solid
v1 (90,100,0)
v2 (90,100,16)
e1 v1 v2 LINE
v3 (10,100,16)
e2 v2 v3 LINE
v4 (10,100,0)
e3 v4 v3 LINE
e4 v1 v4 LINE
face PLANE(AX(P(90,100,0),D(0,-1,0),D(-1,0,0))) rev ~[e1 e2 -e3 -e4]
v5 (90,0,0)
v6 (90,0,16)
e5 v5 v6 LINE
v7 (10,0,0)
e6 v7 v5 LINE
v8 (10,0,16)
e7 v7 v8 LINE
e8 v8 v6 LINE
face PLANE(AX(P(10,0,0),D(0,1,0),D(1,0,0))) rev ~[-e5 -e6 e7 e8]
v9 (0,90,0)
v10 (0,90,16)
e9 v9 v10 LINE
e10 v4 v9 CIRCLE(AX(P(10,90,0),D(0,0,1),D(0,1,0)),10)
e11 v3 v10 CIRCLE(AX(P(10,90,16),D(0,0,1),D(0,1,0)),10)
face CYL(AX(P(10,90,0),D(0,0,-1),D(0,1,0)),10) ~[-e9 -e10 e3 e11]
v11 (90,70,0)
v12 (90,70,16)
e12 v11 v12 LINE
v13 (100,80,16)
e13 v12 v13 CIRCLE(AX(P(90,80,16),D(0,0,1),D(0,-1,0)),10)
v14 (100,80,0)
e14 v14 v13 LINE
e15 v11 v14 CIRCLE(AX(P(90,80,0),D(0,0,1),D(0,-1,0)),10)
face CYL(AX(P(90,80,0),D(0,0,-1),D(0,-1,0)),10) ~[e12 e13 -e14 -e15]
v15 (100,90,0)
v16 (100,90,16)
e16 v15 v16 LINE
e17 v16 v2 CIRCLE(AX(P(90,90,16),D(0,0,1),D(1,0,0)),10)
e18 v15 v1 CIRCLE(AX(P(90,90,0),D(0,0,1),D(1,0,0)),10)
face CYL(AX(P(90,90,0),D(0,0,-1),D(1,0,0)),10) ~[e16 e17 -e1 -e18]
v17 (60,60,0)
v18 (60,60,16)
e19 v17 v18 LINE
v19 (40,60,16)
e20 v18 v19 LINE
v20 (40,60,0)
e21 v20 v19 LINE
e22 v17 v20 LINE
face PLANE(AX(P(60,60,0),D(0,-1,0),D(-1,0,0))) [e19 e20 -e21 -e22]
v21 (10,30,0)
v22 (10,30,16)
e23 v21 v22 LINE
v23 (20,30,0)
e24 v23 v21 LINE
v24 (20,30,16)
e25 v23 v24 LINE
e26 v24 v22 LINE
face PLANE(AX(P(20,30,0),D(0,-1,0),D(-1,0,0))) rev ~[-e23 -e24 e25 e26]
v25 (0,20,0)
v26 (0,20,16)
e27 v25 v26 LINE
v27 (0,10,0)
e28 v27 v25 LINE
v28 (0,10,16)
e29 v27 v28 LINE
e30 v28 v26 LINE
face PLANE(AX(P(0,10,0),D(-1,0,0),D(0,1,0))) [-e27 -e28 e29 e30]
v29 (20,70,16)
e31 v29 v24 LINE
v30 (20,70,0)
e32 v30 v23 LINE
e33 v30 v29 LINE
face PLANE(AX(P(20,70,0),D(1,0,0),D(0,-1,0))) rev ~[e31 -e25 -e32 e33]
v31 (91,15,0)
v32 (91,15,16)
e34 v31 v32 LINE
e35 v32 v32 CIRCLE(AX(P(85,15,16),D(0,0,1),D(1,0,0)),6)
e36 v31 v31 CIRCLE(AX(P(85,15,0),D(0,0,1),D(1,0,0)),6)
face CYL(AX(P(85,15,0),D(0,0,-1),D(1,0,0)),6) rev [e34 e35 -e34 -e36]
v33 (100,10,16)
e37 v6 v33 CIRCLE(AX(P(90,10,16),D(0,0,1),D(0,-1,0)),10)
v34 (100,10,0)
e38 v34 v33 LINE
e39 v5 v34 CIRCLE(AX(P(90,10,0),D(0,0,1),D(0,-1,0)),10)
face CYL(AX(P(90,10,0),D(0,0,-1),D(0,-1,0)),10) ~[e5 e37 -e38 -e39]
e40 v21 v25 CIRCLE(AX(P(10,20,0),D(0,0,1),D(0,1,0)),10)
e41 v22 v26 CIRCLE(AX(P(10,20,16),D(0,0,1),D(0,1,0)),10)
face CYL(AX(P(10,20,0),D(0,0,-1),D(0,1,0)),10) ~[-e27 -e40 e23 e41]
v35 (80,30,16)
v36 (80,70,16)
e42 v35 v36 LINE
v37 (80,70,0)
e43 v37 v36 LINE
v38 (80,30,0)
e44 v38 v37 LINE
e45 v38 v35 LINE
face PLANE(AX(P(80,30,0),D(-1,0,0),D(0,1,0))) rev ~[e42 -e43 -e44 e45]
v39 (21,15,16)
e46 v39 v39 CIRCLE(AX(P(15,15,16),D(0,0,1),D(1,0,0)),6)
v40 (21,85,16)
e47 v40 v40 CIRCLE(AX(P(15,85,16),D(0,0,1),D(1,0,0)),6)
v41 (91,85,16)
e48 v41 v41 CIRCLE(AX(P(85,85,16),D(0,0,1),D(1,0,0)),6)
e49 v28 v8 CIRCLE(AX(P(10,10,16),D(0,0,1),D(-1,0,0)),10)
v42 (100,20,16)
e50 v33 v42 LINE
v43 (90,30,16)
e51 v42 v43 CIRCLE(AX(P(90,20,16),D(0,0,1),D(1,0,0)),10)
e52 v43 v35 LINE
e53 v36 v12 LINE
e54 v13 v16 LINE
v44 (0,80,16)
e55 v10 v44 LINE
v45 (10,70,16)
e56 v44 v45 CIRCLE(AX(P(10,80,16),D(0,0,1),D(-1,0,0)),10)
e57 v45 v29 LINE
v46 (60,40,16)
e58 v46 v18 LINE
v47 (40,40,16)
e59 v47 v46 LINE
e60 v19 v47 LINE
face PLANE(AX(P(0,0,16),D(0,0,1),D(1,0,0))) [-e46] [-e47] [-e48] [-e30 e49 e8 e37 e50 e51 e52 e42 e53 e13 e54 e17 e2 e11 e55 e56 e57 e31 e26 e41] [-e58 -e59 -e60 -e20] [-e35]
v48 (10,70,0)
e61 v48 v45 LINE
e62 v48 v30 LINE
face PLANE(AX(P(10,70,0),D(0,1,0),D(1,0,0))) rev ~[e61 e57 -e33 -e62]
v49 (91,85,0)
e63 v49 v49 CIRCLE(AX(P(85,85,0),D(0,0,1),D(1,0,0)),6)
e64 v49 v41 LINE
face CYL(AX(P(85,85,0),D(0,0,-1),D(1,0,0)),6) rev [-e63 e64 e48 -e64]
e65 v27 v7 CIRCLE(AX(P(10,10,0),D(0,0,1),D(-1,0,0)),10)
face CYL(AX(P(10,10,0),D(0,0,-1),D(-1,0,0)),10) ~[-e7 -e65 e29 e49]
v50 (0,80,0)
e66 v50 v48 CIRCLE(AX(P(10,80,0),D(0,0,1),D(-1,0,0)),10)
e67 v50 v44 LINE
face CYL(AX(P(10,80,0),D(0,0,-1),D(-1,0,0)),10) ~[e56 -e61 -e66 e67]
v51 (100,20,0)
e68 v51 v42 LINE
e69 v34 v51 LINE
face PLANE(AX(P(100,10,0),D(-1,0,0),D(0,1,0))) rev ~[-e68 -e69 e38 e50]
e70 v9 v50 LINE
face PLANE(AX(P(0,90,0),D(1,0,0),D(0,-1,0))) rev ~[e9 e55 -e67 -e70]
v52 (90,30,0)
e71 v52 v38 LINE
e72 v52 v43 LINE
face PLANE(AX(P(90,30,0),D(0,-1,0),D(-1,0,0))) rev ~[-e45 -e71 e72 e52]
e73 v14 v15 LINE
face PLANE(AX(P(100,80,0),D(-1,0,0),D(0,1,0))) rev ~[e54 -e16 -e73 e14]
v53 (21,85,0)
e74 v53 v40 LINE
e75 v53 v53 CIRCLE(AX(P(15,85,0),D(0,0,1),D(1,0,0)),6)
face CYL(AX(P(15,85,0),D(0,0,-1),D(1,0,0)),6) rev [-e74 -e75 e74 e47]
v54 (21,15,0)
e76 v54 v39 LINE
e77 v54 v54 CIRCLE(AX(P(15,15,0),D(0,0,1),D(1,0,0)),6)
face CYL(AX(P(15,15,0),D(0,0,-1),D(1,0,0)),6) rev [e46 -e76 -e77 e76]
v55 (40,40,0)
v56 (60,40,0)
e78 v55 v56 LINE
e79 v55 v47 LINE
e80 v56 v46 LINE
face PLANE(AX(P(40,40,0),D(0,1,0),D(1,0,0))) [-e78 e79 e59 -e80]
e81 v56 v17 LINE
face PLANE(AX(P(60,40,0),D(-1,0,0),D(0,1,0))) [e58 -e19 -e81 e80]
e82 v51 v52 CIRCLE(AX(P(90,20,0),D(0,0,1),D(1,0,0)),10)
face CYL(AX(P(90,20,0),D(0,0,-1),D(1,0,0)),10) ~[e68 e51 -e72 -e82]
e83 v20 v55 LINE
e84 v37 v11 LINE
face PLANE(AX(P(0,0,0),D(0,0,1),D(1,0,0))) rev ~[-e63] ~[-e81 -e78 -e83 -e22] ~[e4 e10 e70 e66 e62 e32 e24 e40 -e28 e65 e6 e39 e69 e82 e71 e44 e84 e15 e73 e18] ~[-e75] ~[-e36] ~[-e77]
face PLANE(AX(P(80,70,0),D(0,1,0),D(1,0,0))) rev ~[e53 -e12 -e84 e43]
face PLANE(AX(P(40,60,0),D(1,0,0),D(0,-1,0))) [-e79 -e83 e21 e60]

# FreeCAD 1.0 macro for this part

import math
import FreeCAD as App
import Part
import Sketcher
Q = App.Units.Quantity


def add_polygon(sketch, points):
    """Adds a closed chain of lines whose ends are joined by coincident constraints."""
    first, n = sketch.GeometryCount, len(points)
    for a, b in zip(points, points[1:] + points[:1]):
        sketch.addGeometry(Part.LineSegment(App.Vector(*a, 0), App.Vector(*b, 0)), False)
    for i in range(n):
        sketch.addConstraint(Sketcher.Constraint("Coincident", first + i, 2, first + (i + 1) % n, 1))

doc = App.newDocument("Part")
params = doc.addObject("Spreadsheet::Sheet", "Params")
for row, (alias, value) in enumerate([
    ("sketch1_radius", "10 mm"),
    ("sketch1_width", "10 mm"),
    ("sketch1_diameter", "12 mm"),
    ("sketch1_width2", "80 mm"),
    ("sketch1_width3", "20 mm"),
    ("pad1_length", "16 mm"),
], start=1):
    params.set(f"A{row}", alias)
    params.set(f"B{row}", "=" + value)
    params.setAlias(f"B{row}", alias)

body = doc.addObject("PartDesign::Body", "Body")

# Sketch on XY plane
sketch1 = doc.addObject("Sketcher::SketchObject", "Sketch")
body.addObject(sketch1)
sketch1.AttachmentSupport = (doc.XY_Plane, [""])
sketch1.MapMode = "FlatFace"
sketch1.addGeometry(Part.ArcOfCircle(Part.Circle(App.Vector(10, 10, 0), App.Vector(0, 0, 1), 10), math.radians(180), math.radians(270)), False)  # 0
sketch1.addGeometry(Part.LineSegment(App.Vector(10, 0, 0), App.Vector(90, 0, 0)), False)  # 1
sketch1.addGeometry(Part.ArcOfCircle(Part.Circle(App.Vector(90, 10, 0), App.Vector(0, 0, 1), 10), math.radians(-90), math.radians(0)), False)  # 2
sketch1.addGeometry(Part.LineSegment(App.Vector(100, 10, 0), App.Vector(100, 20, 0)), False)  # 3
sketch1.addGeometry(Part.ArcOfCircle(Part.Circle(App.Vector(90, 20, 0), App.Vector(0, 0, 1), 10), math.radians(0), math.radians(90)), False)  # 4
sketch1.addGeometry(Part.LineSegment(App.Vector(90, 30, 0), App.Vector(80, 30, 0)), False)  # 5
sketch1.addGeometry(Part.LineSegment(App.Vector(80, 30, 0), App.Vector(80, 70, 0)), False)  # 6
sketch1.addGeometry(Part.LineSegment(App.Vector(80, 70, 0), App.Vector(90, 70, 0)), False)  # 7
sketch1.addGeometry(Part.ArcOfCircle(Part.Circle(App.Vector(90, 80, 0), App.Vector(0, 0, 1), 10), math.radians(-90), math.radians(0)), False)  # 8
sketch1.addGeometry(Part.LineSegment(App.Vector(100, 80, 0), App.Vector(100, 90, 0)), False)  # 9
sketch1.addGeometry(Part.ArcOfCircle(Part.Circle(App.Vector(90, 90, 0), App.Vector(0, 0, 1), 10), math.radians(0), math.radians(90)), False)  # 10
sketch1.addGeometry(Part.LineSegment(App.Vector(90, 100, 0), App.Vector(10, 100, 0)), False)  # 11
sketch1.addGeometry(Part.ArcOfCircle(Part.Circle(App.Vector(10, 90, 0), App.Vector(0, 0, 1), 10), math.radians(90), math.radians(180)), False)  # 12
sketch1.addGeometry(Part.LineSegment(App.Vector(0, 90, 0), App.Vector(0, 80, 0)), False)  # 13
sketch1.addGeometry(Part.ArcOfCircle(Part.Circle(App.Vector(10, 80, 0), App.Vector(0, 0, 1), 10), math.radians(180), math.radians(270)), False)  # 14
sketch1.addGeometry(Part.LineSegment(App.Vector(10, 70, 0), App.Vector(20, 70, 0)), False)  # 15
sketch1.addGeometry(Part.LineSegment(App.Vector(20, 70, 0), App.Vector(20, 30, 0)), False)  # 16
sketch1.addGeometry(Part.LineSegment(App.Vector(20, 30, 0), App.Vector(10, 30, 0)), False)  # 17
sketch1.addGeometry(Part.ArcOfCircle(Part.Circle(App.Vector(10, 20, 0), App.Vector(0, 0, 1), 10), math.radians(90), math.radians(180)), False)  # 18
sketch1.addGeometry(Part.LineSegment(App.Vector(0, 20, 0), App.Vector(0, 10, 0)), False)  # 19
sketch1.addGeometry(Part.Circle(App.Vector(15, 15, 0), App.Vector(0, 0, 1), 6), False)  # 20
sketch1.addGeometry(Part.Circle(App.Vector(85, 15, 0), App.Vector(0, 0, 1), 6), False)  # 21
sketch1.addGeometry(Part.Circle(App.Vector(15, 85, 0), App.Vector(0, 0, 1), 6), False)  # 22
add_polygon(sketch1, [(60, 40), (40, 40), (40, 60), (60, 60)])  # lines 23-26
sketch1.addGeometry(Part.Circle(App.Vector(85, 85, 0), App.Vector(0, 0, 1), 6), False)  # 27
sketch1.addConstraint(Sketcher.Constraint("Tangent", 0, 2, 1, 1))
sketch1.addConstraint(Sketcher.Constraint("Tangent", 1, 2, 2, 1))
sketch1.addConstraint(Sketcher.Constraint("Tangent", 2, 2, 3, 1))
sketch1.addConstraint(Sketcher.Constraint("Tangent", 3, 2, 4, 1))
sketch1.addConstraint(Sketcher.Constraint("Tangent", 4, 2, 5, 1))
sketch1.addConstraint(Sketcher.Constraint("Coincident", 5, 2, 6, 1))
sketch1.addConstraint(Sketcher.Constraint("Coincident", 6, 2, 7, 1))
sketch1.addConstraint(Sketcher.Constraint("Tangent", 7, 2, 8, 1))
sketch1.addConstraint(Sketcher.Constraint("Tangent", 8, 2, 9, 1))
sketch1.addConstraint(Sketcher.Constraint("Tangent", 9, 2, 10, 1))
sketch1.addConstraint(Sketcher.Constraint("Tangent", 10, 2, 11, 1))
sketch1.addConstraint(Sketcher.Constraint("Tangent", 11, 2, 12, 1))
sketch1.addConstraint(Sketcher.Constraint("Tangent", 12, 2, 13, 1))
sketch1.addConstraint(Sketcher.Constraint("Tangent", 13, 2, 14, 1))
sketch1.addConstraint(Sketcher.Constraint("Tangent", 14, 2, 15, 1))
sketch1.addConstraint(Sketcher.Constraint("Coincident", 15, 2, 16, 1))
sketch1.addConstraint(Sketcher.Constraint("Coincident", 16, 2, 17, 1))
sketch1.addConstraint(Sketcher.Constraint("Tangent", 17, 2, 18, 1))
sketch1.addConstraint(Sketcher.Constraint("Tangent", 18, 2, 19, 1))
sketch1.addConstraint(Sketcher.Constraint("Tangent", 19, 2, 0, 1))
sketch1.addConstraint(Sketcher.Constraint("Horizontal", 1))
sketch1.addConstraint(Sketcher.Constraint("Vertical", 3))
sketch1.addConstraint(Sketcher.Constraint("Horizontal", 5))
sketch1.addConstraint(Sketcher.Constraint("Vertical", 6))
sketch1.addConstraint(Sketcher.Constraint("Horizontal", 7))
sketch1.addConstraint(Sketcher.Constraint("Vertical", 9))
sketch1.addConstraint(Sketcher.Constraint("Horizontal", 11))
sketch1.addConstraint(Sketcher.Constraint("Vertical", 13))
sketch1.addConstraint(Sketcher.Constraint("Horizontal", 15))
sketch1.addConstraint(Sketcher.Constraint("Vertical", 16))
sketch1.addConstraint(Sketcher.Constraint("Horizontal", 17))
sketch1.addConstraint(Sketcher.Constraint("Vertical", 19))
sketch1.addConstraint(Sketcher.Constraint("Horizontal", 23))
sketch1.addConstraint(Sketcher.Constraint("Vertical", 24))
sketch1.addConstraint(Sketcher.Constraint("Horizontal", 25))
sketch1.addConstraint(Sketcher.Constraint("Vertical", 26))
sketch1.addConstraint(Sketcher.Constraint("Equal", 0, 2))
sketch1.addConstraint(Sketcher.Constraint("Equal", 2, 4))
sketch1.addConstraint(Sketcher.Constraint("Equal", 4, 8))
sketch1.addConstraint(Sketcher.Constraint("Equal", 8, 10))
sketch1.addConstraint(Sketcher.Constraint("Equal", 10, 12))
sketch1.addConstraint(Sketcher.Constraint("Equal", 12, 14))
sketch1.addConstraint(Sketcher.Constraint("Equal", 14, 18))
sketch1.addConstraint(Sketcher.Constraint("Equal", 20, 21))
sketch1.addConstraint(Sketcher.Constraint("Equal", 21, 22))
sketch1.addConstraint(Sketcher.Constraint("Equal", 22, 27))
sketch1.addConstraint(Sketcher.Constraint("PointOnObject", 0, 2, -1))
sketch1.addConstraint(Sketcher.Constraint("PointOnObject", 12, 2, -2))
sketch1.addConstraint(Sketcher.Constraint("PointOnObject", 18, 2, -2))
sketch1.addConstraint(Sketcher.Constraint("Horizontal", 8, 3, 14, 3))
sketch1.addConstraint(Sketcher.Constraint("Horizontal", 4, 3, 18, 3))
sketch1.addConstraint(Sketcher.Constraint("Horizontal", 20, 3, 21, 3))
sketch1.addConstraint(Sketcher.Constraint("Horizontal", 22, 3, 27, 3))
sketch1.addConstraint(Sketcher.Constraint("Vertical", 4, 3, 8, 3))
sketch1.addConstraint(Sketcher.Constraint("Vertical", 20, 3, 22, 3))
sketch1.addConstraint(Sketcher.Constraint("Vertical", 21, 3, 27, 3))
sketch1.addConstraint(Sketcher.Constraint("Equal", 7, 15))
sketch1.addConstraint(Sketcher.Constraint("Equal", 17, 3))
sketch1.addConstraint(Sketcher.Constraint("Equal", 3, 9))
sketch1.addConstraint(Sketcher.Constraint("Equal", 25, 24))
sketch1.addConstraint(Sketcher.Constraint("Radius", 0, Q("10 mm")))
sketch1.addConstraint(Sketcher.Constraint("DistanceX", 5, 2, 5, 1, Q("10 mm")))
sketch1.addConstraint(Sketcher.Constraint("Diameter", 20, Q("12 mm")))
sketch1.addConstraint(Sketcher.Constraint("DistanceY", 16, 2, 23, 2, Q("10 mm")))
sketch1.addConstraint(Sketcher.Constraint("DistanceY", 24, 2, 15, 2, Q("10 mm")))
sketch1.addConstraint(Sketcher.Constraint("DistanceX", 1, 1, 1, 2, Q("80 mm")))
sketch1.addConstraint(Sketcher.Constraint("DistanceX", 23, 2, 23, 1, Q("20 mm")))
sketch1.addConstraint(Sketcher.Constraint("DistanceX", -1, 1, 20, 3, Q("15 mm")))
sketch1.addConstraint(Sketcher.Constraint("DistanceY", -1, 1, 20, 3, Q("15 mm")))
sketch1.addConstraint(Sketcher.Constraint("DistanceX", -1, 1, 21, 3, Q("85 mm")))
sketch1.addConstraint(Sketcher.Constraint("DistanceY", -1, 1, 22, 3, Q("85 mm")))
sketch1.addConstraint(Sketcher.Constraint("DistanceX", -1, 1, 23, 2, Q("40 mm")))
sketch1.setExpression("Constraints[64]", "Params.sketch1_radius")
sketch1.setExpression("Constraints[65]", "Params.sketch1_width")
sketch1.setExpression("Constraints[66]", "Params.sketch1_diameter")
sketch1.setExpression("Constraints[69]", "Params.sketch1_width2")
sketch1.setExpression("Constraints[70]", "Params.sketch1_width3")
pad1 = doc.addObject("PartDesign::Pad", "Pad")
body.addObject(pad1)
pad1.Profile = sketch1
pad1.setExpression("Length", "Params.pad1_length")

doc.recompute()
